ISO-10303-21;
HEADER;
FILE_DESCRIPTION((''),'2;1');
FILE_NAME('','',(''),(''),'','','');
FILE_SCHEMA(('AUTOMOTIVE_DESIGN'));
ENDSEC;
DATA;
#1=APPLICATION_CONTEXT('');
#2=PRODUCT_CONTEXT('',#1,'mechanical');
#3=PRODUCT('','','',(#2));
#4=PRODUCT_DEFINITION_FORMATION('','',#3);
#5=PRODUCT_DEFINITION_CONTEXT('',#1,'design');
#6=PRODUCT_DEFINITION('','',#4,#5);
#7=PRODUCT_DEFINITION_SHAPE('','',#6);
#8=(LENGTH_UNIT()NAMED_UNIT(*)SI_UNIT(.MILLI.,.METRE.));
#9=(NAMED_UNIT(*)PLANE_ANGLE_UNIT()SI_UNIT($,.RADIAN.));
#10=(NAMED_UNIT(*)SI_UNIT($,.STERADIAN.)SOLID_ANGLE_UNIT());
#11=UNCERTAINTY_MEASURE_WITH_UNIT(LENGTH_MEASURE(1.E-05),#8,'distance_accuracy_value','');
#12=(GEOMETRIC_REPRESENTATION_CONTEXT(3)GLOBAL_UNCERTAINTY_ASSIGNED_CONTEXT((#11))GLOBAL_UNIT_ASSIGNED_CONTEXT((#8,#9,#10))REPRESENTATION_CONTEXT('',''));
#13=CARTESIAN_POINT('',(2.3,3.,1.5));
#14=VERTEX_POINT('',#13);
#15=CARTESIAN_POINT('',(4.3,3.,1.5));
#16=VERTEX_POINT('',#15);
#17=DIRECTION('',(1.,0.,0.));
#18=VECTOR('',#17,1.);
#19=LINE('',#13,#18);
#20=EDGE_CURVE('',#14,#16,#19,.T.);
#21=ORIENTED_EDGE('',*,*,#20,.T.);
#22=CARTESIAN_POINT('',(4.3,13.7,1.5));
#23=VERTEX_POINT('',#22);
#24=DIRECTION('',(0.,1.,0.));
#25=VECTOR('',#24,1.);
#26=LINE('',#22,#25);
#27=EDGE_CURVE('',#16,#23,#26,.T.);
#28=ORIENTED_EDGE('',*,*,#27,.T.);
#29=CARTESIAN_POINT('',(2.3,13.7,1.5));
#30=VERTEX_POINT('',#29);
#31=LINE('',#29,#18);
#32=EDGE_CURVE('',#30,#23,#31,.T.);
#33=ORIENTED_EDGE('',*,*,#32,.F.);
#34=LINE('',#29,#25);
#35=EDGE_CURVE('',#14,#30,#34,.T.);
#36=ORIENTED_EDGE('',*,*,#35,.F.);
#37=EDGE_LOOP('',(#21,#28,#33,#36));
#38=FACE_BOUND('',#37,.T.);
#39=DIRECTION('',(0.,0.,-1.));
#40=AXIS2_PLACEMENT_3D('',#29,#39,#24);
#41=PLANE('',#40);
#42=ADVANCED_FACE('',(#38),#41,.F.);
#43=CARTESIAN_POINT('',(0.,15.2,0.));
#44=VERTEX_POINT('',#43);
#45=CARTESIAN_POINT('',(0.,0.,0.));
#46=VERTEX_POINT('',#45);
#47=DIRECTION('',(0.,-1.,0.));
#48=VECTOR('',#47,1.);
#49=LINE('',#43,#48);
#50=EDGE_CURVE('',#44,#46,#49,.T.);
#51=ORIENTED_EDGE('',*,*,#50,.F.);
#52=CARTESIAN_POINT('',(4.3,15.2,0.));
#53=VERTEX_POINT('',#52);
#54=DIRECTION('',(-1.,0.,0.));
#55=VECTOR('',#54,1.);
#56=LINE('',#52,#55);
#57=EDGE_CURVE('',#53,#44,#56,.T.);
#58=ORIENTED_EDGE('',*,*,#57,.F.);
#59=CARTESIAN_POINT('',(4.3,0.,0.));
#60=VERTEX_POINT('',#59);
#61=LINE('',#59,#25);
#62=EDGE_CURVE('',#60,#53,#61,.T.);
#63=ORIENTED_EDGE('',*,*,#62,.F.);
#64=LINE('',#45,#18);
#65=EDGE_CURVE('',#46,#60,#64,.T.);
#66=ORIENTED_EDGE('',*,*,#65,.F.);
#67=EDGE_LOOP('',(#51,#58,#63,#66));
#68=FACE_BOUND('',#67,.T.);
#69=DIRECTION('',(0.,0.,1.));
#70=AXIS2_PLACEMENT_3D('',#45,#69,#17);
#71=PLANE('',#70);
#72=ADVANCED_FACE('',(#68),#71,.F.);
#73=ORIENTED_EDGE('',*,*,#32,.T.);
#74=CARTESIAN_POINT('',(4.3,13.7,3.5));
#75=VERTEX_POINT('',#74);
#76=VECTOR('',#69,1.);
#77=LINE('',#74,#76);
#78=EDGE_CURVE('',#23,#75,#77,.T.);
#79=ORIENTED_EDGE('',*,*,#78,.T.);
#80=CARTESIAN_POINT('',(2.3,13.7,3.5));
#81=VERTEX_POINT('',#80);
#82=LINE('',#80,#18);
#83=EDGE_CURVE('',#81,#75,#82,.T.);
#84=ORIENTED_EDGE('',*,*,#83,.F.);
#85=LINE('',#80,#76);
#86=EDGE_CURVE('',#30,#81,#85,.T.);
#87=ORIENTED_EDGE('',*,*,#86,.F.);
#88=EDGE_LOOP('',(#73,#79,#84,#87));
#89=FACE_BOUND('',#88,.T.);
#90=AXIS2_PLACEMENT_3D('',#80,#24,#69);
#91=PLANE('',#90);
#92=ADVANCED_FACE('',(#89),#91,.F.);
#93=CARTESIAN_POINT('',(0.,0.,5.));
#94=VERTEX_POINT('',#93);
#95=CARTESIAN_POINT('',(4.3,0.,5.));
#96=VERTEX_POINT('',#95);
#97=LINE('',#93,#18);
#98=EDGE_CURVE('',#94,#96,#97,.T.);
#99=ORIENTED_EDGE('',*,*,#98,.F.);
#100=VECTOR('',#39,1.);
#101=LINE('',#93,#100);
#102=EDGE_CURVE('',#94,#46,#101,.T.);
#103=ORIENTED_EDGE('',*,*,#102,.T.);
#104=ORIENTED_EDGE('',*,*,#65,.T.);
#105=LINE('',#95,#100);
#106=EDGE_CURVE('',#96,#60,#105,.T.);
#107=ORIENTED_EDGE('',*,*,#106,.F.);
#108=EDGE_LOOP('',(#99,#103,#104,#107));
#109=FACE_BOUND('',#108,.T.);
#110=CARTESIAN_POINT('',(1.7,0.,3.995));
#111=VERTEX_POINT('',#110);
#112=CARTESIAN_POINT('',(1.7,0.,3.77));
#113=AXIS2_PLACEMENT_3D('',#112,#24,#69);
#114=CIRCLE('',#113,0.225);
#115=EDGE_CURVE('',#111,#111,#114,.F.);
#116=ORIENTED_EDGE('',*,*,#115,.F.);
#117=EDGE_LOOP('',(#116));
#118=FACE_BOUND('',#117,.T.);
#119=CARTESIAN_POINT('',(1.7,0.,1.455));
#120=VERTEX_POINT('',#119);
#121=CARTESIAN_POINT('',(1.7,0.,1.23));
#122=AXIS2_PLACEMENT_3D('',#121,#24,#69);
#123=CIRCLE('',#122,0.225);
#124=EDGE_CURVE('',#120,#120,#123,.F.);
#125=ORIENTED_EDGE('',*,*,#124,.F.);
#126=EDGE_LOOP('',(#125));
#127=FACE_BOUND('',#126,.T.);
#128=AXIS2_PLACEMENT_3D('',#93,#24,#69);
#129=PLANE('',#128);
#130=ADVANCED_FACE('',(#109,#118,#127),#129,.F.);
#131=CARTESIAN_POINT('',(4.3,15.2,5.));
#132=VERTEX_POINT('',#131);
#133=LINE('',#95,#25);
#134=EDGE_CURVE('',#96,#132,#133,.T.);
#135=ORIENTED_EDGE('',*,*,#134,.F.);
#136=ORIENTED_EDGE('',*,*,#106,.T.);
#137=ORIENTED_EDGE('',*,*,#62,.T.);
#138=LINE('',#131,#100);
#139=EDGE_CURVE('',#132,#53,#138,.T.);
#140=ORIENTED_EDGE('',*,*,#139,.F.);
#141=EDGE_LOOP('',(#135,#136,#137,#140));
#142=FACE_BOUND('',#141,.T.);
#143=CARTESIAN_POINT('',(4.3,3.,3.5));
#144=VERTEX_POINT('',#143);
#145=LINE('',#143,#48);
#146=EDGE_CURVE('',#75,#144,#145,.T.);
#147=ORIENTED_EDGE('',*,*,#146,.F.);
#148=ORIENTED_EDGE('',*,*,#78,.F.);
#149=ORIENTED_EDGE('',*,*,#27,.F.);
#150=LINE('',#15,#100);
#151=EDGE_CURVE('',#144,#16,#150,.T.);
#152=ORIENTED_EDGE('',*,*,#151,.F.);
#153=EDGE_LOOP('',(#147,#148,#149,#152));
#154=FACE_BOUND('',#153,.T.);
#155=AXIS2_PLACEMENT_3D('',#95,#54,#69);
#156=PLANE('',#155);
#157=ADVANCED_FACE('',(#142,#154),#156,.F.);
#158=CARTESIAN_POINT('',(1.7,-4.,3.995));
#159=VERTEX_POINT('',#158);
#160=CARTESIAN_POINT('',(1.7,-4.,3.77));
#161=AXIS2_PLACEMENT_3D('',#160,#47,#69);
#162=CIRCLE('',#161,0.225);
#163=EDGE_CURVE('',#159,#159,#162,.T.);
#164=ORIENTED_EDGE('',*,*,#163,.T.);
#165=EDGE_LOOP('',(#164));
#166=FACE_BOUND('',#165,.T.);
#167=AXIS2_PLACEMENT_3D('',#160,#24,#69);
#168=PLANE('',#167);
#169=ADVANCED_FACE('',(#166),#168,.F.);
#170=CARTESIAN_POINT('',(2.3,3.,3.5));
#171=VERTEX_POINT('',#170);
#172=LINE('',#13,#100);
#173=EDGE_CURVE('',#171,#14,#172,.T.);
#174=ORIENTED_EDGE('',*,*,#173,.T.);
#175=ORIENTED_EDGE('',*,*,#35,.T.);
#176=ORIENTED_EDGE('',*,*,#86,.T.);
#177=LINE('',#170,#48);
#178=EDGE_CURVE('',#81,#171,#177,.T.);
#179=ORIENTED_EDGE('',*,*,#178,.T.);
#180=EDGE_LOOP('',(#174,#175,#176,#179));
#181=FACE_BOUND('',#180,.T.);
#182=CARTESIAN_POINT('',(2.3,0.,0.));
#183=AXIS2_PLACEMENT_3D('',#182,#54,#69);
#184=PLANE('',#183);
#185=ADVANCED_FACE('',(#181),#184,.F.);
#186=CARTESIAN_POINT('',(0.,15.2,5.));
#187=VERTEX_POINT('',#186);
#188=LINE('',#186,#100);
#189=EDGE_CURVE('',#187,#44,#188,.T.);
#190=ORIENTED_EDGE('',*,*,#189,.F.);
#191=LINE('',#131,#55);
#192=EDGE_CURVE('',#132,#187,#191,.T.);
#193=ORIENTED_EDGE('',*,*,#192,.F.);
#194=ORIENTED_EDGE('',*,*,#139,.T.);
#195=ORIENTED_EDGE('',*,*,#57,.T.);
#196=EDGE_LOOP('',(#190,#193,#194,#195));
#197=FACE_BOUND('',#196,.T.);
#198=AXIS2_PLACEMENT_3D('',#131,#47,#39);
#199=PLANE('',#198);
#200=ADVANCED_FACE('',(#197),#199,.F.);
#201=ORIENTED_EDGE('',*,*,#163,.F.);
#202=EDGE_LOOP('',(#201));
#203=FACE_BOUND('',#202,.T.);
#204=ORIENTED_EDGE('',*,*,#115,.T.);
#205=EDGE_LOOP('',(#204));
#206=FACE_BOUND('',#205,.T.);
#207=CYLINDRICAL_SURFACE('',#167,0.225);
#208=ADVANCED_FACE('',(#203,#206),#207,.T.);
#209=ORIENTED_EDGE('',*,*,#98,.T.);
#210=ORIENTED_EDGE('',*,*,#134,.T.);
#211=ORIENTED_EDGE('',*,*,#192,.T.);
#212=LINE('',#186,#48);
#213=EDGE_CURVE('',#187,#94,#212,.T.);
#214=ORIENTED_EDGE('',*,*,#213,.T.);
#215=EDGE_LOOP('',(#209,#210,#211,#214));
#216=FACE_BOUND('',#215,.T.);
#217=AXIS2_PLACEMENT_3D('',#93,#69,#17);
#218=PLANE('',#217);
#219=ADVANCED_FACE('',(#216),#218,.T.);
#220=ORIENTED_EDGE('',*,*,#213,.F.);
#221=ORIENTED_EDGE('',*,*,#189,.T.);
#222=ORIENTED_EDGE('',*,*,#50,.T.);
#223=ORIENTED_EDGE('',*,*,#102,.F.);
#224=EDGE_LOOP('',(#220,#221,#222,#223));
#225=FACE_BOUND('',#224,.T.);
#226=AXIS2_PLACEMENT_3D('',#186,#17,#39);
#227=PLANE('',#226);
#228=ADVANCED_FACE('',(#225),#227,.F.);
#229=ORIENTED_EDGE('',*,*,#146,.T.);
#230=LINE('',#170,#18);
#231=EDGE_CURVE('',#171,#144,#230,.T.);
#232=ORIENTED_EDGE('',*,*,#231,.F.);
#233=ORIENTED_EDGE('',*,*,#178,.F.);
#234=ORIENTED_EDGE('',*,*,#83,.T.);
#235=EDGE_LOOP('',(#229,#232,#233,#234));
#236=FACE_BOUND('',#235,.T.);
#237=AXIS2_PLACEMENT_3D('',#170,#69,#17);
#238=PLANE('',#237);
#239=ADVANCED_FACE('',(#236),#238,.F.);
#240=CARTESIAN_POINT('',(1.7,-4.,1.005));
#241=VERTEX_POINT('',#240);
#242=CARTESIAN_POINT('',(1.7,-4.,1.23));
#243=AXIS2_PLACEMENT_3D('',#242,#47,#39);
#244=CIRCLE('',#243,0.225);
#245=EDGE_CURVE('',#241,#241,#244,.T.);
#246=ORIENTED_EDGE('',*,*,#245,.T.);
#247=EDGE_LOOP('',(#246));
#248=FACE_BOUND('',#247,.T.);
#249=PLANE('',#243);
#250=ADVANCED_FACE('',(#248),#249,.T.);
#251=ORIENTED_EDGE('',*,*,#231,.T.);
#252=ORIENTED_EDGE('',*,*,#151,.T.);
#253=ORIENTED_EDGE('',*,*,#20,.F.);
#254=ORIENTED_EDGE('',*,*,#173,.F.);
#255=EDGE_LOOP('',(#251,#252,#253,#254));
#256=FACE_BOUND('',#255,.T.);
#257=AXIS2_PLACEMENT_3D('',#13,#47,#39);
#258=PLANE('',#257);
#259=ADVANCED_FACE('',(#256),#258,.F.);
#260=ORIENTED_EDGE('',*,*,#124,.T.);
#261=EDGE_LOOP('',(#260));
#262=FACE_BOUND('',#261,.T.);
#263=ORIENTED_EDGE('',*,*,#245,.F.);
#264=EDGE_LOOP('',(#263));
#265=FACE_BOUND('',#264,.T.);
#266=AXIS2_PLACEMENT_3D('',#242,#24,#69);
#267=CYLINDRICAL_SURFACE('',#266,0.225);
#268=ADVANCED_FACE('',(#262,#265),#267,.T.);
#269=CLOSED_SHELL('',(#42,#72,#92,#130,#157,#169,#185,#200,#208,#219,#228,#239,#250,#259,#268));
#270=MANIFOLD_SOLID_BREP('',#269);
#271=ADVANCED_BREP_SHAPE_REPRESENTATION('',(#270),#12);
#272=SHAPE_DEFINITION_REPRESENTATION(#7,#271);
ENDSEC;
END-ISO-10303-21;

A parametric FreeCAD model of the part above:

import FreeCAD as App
import Part
import Sketcher
from FreeCAD import Vector


def add_polygon(sketch, points):
    """Adds a closed chain of lines whose ends are joined by coincident constraints."""
    first, n = sketch.GeometryCount, len(points)
    for a, b in zip(points, points[1:] + points[:1]):
        sketch.addGeometry(Part.LineSegment(App.Vector(*a, 0), App.Vector(*b, 0)), False)
    for i in range(n):
        sketch.addConstraint(Sketcher.Constraint("Coincident", first + i, 2, first + (i + 1) % n, 1))

doc = App.newDocument("Part")
params = doc.addObject("Spreadsheet::Sheet", "Params")
for row, (alias, value) in enumerate([
    ("sketch1_width", "4.3 mm"),
    ("sketch1_height", "15.2 mm"),
    ("pad1_length", "5 mm"),
    ("sketch2_height", "2 mm"),
    ("sketch2_width", "10.7 mm"),
    ("pocket1_length", "2 mm"),
    ("sketch3_diameter", "0.45 mm"),
    ("pad2_length", "4 mm"),
], start=1):
    params.set(f"A{row}", alias)
    params.set(f"B{row}", "=" + value)
    params.setAlias(f"B{row}", alias)

body = doc.addObject("PartDesign::Body", "Body")

# Sketch on XY plane
sketch1 = body.newObject("Sketcher::SketchObject", "Sketch")
sketch1.AttachmentSupport = (doc.getObject("XY_Plane"), [""])
sketch1.MapMode = "FlatFace"
add_polygon(sketch1, [(0, 15.2), (0, 0), (4.3, 0), (4.3, 15.2)])  # lines 0-3
sketch1.addConstraint(Sketcher.Constraint("Vertical", 0))
sketch1.addConstraint(Sketcher.Constraint("Horizontal", 1))
sketch1.addConstraint(Sketcher.Constraint("Vertical", 2))
sketch1.addConstraint(Sketcher.Constraint("Horizontal", 3))
sketch1.addConstraint(Sketcher.Constraint("Coincident", 0, 2, -1, 1))
sketch1.addConstraint(Sketcher.Constraint("DistanceX", 1, 1, 1, 2, 4.3))
sketch1.addConstraint(Sketcher.Constraint("DistanceY", 0, 2, 0, 1, 15.2))
sketch1.setExpression("Constraints[9]", "Params.sketch1_width")
sketch1.setExpression("Constraints[10]", "Params.sketch1_height")
pad1 = body.newObject("PartDesign::Pad", "Pad")
pad1.Profile = sketch1
pad1.setExpression("Length", "Params.pad1_length")

# Sketch on YZ plane
sketch2 = body.newObject("Sketcher::SketchObject", "Sketch001")
sketch2.AttachmentSupport = (doc.getObject("YZ_Plane"), [""])
sketch2.MapMode = "FlatFace"
sketch2.AttachmentOffset = App.Placement(Vector(0, 0, 4.3), App.Rotation())
add_polygon(sketch2, [(13.7, 3.5), (3, 3.5), (3, 1.5), (13.7, 1.5)])  # lines 0-3
sketch2.addConstraint(Sketcher.Constraint("Horizontal", 0))
sketch2.addConstraint(Sketcher.Constraint("Vertical", 1))
sketch2.addConstraint(Sketcher.Constraint("Horizontal", 2))
sketch2.addConstraint(Sketcher.Constraint("Vertical", 3))
sketch2.addConstraint(Sketcher.Constraint("DistanceY", 1, 2, 1, 1, 2.0))
sketch2.addConstraint(Sketcher.Constraint("DistanceX", 0, 2, 0, 1, 10.7))
sketch2.addConstraint(Sketcher.Constraint("DistanceX", -1, 1, 0, 2, 3.0))
sketch2.addConstraint(Sketcher.Constraint("DistanceY", -1, 1, 0, 2, 3.5))
sketch2.setExpression("Constraints[8]", "Params.sketch2_height")
sketch2.setExpression("Constraints[9]", "Params.sketch2_width")
pocket1 = body.newObject("PartDesign::Pocket", "Pocket")
pocket1.Profile = sketch2
pocket1.setExpression("Length", "Params.pocket1_length")

# Sketch on XZ plane
sketch3 = body.newObject("Sketcher::SketchObject", "Sketch002")
sketch3.AttachmentSupport = (doc.getObject("XZ_Plane"), [""])
sketch3.MapMode = "FlatFace"
sketch3.addGeometry(Part.Circle(Vector(1.7, 1.23, 0), Vector(0, 0, 1), 0.23), False)
sketch3.addGeometry(Part.Circle(Vector(1.7, 3.77, 0), Vector(0, 0, 1), 0.23), False)
sketch3.addConstraint(Sketcher.Constraint("Equal", 0, 1))
sketch3.addConstraint(Sketcher.Constraint("Vertical", 0, 3, 1, 3))
sketch3.addConstraint(Sketcher.Constraint("Diameter", 0, 0.45))
sketch3.addConstraint(Sketcher.Constraint("DistanceX", -1, 1, 0, 3, 1.7))
sketch3.addConstraint(Sketcher.Constraint("DistanceY", -1, 1, 0, 3, 1.23))
sketch3.addConstraint(Sketcher.Constraint("DistanceY", -1, 1, 1, 3, 3.77))
sketch3.setExpression("Constraints[2]", "Params.sketch3_diameter")
pad2 = body.newObject("PartDesign::Pad", "Pad001")
pad2.Profile = sketch3
pad2.setExpression("Length", "Params.pad2_length")

doc.recompute()
